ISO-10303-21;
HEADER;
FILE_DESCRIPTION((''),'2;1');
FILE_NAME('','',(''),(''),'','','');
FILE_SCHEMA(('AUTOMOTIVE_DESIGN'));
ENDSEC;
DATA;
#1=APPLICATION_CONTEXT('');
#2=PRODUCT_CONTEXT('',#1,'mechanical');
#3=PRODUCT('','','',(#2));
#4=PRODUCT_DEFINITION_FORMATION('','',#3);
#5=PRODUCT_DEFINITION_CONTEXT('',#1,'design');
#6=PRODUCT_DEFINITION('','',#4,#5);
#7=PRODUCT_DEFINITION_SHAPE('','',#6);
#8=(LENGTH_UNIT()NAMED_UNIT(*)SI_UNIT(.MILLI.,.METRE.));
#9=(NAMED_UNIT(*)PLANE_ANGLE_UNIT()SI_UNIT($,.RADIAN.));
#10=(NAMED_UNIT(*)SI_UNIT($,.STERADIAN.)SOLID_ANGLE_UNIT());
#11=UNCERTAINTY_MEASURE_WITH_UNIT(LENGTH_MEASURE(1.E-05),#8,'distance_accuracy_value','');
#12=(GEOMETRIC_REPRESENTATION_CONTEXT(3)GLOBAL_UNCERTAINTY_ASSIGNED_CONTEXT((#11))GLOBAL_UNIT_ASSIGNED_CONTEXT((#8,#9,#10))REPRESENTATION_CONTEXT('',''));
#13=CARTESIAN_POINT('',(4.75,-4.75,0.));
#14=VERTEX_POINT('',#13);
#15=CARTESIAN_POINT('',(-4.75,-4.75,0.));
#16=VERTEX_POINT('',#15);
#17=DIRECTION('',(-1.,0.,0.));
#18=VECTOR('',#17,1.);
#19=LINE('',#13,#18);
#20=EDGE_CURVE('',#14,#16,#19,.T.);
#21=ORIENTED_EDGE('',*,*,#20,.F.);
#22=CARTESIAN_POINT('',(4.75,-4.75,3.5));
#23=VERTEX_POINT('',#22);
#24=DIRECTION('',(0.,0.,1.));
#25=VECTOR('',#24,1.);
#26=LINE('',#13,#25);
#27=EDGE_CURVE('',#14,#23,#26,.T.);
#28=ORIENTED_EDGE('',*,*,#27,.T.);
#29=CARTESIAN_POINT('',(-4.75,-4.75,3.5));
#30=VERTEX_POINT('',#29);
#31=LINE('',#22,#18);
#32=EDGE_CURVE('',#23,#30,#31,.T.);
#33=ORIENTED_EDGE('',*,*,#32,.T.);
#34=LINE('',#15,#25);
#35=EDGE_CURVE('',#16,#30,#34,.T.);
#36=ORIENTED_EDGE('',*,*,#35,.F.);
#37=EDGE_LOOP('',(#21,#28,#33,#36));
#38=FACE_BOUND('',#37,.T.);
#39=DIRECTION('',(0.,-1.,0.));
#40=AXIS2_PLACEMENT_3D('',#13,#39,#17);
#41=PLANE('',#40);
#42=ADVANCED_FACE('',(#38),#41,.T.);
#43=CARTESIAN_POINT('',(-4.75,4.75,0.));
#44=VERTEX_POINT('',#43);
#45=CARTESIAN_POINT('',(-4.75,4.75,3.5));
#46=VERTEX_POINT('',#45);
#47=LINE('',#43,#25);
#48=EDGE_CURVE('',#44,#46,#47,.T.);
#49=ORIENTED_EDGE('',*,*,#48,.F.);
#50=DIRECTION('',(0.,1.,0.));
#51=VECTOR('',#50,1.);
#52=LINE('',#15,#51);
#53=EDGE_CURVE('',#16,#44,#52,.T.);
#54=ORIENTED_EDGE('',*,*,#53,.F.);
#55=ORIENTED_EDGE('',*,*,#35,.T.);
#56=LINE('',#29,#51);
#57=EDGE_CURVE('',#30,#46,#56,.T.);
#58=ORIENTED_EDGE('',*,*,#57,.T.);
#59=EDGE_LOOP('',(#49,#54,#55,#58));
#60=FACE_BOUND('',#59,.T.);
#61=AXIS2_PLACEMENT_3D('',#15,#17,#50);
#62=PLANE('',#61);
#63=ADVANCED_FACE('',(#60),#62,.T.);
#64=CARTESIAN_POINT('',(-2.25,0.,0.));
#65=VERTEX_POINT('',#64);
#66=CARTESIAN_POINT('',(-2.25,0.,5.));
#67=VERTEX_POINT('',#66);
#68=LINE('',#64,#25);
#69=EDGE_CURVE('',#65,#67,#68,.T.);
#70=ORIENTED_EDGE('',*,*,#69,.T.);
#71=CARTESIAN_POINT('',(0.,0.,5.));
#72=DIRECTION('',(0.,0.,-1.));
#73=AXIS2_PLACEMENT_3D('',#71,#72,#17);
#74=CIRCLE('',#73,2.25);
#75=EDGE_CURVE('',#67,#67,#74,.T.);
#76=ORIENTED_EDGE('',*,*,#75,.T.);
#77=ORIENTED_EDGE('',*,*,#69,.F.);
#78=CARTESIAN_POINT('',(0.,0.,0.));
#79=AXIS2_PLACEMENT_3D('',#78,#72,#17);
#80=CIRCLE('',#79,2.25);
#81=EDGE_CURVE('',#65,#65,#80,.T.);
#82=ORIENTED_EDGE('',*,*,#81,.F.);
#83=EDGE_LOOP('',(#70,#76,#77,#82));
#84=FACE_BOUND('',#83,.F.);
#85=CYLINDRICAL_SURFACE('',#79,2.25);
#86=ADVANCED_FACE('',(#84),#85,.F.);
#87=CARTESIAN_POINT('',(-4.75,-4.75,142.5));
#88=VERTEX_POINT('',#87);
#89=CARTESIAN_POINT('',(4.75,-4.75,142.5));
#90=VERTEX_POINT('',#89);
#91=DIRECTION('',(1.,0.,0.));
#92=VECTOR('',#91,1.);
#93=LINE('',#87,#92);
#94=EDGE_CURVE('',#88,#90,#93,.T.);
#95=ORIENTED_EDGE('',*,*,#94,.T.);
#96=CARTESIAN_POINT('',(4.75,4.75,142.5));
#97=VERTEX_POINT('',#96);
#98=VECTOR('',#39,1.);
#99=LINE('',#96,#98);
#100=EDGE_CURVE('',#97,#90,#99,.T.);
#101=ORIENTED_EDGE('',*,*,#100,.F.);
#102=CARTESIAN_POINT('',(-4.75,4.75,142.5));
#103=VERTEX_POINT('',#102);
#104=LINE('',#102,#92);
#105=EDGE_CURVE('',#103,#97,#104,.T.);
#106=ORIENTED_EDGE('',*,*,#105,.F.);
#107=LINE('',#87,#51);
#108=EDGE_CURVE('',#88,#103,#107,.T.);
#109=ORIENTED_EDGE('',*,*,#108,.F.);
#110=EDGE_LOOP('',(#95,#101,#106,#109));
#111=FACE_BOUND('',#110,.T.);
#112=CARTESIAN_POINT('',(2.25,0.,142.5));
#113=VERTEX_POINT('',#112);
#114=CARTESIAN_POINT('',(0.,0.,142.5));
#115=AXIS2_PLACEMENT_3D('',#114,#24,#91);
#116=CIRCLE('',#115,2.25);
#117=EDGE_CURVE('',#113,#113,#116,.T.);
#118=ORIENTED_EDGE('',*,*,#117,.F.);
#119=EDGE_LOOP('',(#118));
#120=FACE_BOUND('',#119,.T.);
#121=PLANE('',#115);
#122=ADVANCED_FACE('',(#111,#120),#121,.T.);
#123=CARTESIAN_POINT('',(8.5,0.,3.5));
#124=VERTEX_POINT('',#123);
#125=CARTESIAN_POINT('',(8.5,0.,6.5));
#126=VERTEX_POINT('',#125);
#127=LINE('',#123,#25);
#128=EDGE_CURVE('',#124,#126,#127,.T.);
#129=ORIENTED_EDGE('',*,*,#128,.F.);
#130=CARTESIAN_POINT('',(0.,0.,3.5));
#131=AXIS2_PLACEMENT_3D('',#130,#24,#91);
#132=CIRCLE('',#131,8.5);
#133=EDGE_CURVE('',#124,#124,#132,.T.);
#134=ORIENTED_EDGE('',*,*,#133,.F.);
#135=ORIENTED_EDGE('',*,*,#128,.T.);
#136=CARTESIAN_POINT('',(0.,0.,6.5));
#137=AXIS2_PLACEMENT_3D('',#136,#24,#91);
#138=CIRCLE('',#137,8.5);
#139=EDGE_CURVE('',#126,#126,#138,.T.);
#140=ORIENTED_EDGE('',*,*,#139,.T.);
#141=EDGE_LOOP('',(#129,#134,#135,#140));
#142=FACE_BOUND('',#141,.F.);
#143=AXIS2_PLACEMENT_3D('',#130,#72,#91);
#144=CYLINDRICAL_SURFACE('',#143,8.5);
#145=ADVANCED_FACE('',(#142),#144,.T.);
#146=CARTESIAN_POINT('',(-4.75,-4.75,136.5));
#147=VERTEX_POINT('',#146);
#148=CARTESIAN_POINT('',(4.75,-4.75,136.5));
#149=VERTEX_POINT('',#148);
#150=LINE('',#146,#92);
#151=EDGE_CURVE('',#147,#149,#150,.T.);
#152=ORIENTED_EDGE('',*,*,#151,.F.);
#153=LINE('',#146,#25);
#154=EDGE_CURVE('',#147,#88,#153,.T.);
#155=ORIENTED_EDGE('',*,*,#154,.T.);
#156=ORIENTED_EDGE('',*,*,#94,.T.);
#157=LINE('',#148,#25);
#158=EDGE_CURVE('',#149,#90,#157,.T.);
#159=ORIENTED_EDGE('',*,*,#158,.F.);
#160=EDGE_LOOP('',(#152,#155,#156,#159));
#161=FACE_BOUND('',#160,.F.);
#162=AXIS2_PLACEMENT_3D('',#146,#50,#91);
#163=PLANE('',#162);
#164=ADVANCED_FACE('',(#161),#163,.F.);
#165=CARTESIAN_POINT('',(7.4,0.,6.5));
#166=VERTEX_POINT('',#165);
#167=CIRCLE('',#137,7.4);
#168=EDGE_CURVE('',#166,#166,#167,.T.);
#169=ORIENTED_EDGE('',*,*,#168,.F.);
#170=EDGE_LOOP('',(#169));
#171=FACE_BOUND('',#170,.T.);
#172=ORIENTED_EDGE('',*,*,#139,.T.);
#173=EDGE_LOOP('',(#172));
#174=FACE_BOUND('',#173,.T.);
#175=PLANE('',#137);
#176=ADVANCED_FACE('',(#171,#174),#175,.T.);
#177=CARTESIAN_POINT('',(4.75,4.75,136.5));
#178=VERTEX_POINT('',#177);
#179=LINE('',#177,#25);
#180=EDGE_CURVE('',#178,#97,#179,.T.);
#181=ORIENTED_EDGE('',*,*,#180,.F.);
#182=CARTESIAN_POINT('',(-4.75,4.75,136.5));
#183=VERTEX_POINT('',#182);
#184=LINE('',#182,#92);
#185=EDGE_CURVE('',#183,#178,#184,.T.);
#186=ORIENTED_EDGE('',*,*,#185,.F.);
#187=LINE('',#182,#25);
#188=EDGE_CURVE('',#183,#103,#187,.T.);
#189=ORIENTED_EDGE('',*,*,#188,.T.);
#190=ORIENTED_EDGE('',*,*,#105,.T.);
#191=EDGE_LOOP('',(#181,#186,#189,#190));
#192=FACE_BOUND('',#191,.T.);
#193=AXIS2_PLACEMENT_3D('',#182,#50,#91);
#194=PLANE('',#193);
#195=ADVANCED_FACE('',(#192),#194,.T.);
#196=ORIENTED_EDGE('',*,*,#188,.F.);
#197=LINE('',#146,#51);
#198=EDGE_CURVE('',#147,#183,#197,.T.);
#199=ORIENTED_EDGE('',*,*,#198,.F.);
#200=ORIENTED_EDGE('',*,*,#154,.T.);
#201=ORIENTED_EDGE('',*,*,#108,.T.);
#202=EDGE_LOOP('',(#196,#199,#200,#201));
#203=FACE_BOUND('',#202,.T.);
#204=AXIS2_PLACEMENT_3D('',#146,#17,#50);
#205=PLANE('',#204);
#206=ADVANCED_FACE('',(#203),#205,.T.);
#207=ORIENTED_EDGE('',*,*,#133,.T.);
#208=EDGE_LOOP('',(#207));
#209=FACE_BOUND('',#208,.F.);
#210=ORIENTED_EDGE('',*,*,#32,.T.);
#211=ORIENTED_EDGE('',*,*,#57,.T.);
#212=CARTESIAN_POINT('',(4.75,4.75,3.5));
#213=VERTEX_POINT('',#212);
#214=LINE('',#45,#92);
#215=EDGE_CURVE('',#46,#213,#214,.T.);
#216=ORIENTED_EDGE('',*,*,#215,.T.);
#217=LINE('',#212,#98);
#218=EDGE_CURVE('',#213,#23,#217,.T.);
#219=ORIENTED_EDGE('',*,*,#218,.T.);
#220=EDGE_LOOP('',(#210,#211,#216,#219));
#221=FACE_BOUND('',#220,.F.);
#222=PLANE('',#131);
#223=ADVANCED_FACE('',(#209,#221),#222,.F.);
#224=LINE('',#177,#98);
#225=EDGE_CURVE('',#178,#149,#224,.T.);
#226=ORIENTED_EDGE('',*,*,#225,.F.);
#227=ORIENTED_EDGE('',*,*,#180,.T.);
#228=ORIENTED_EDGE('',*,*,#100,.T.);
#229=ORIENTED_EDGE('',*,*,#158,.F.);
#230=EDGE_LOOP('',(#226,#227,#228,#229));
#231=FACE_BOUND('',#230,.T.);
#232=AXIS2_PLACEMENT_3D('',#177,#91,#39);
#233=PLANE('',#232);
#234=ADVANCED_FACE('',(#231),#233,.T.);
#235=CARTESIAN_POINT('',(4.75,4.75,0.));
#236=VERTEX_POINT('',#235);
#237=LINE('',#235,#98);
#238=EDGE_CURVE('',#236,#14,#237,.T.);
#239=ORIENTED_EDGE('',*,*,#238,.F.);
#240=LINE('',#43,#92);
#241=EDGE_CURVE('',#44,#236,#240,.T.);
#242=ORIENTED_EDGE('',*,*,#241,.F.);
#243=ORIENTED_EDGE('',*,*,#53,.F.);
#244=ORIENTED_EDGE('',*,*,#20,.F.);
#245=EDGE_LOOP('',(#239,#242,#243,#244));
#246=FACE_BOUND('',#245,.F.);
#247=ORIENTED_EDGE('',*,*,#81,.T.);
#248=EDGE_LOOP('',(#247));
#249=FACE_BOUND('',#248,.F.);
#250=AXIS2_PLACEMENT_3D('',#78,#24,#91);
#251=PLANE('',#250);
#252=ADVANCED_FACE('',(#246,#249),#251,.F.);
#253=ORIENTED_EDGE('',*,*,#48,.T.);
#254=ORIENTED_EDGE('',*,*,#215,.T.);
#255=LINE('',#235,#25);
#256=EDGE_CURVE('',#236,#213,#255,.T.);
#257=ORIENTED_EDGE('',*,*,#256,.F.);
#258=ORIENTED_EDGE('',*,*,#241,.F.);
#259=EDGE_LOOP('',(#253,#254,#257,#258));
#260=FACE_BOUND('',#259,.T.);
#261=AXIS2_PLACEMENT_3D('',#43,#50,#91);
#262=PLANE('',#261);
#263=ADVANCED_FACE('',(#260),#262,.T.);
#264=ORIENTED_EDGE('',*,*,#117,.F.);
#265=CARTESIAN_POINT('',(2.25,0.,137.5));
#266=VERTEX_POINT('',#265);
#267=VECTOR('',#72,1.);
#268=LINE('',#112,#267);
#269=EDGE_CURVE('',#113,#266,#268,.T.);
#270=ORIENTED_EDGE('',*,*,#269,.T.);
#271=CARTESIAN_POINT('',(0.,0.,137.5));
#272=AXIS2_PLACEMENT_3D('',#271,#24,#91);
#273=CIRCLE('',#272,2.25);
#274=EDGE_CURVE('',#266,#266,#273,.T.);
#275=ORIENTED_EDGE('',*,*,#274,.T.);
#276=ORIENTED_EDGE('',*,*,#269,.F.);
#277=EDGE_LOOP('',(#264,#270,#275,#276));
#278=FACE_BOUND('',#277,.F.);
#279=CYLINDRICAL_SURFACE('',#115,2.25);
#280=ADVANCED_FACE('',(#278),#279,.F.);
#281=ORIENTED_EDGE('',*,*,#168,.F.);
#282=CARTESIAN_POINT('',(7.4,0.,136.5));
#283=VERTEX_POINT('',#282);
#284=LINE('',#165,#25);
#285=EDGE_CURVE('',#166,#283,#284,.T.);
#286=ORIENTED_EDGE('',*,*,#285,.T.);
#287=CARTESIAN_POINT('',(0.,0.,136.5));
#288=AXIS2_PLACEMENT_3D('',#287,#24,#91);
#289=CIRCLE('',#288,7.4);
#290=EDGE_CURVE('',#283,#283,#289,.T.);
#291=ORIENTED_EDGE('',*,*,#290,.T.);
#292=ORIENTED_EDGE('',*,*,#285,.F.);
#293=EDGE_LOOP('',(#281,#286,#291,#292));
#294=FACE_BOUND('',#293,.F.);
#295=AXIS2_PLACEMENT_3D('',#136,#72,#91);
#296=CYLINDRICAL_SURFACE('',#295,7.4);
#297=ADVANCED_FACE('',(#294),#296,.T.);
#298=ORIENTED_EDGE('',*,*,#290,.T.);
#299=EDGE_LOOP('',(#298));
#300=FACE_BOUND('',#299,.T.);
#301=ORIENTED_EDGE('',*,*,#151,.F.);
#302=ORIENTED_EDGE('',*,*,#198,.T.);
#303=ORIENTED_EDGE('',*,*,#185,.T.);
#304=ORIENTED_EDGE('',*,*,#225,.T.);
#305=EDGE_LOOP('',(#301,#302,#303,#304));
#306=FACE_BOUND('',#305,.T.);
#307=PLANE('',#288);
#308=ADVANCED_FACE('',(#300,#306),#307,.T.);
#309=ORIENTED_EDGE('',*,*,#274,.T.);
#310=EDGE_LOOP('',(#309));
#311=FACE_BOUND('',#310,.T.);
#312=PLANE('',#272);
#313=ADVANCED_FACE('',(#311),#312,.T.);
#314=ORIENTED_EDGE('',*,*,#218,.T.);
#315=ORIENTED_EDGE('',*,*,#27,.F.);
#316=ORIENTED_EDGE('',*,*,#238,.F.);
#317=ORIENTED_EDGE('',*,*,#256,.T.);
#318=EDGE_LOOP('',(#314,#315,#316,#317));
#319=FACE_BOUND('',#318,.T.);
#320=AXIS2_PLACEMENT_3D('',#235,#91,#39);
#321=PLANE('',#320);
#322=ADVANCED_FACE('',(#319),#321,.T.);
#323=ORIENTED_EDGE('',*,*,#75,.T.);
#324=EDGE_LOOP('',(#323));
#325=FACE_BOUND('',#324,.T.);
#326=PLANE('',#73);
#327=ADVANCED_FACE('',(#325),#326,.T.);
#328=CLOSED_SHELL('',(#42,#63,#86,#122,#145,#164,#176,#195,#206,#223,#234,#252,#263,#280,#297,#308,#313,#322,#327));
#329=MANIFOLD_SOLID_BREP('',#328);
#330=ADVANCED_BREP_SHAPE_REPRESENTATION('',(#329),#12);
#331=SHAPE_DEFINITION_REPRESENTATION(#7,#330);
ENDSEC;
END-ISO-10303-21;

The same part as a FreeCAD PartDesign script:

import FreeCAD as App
import Part
import Sketcher
from FreeCAD import Vector


def add_polygon(sketch, points):
    """Adds a closed chain of lines whose ends are joined by coincident constraints."""
    first, n = sketch.GeometryCount, len(points)
    for a, b in zip(points, points[1:] + points[:1]):
        sketch.addGeometry(Part.LineSegment(App.Vector(*a, 0), App.Vector(*b, 0)), False)
    for i in range(n):
        sketch.addConstraint(Sketcher.Constraint("Coincident", first + i, 2, first + (i + 1) % n, 1))

doc = App.newDocument("Part")
params = doc.addObject("Spreadsheet::Sheet", "Params")
for row, (alias, value) in enumerate([
    ("sketch1_width", "9.5 mm"),
    ("pad1_length", "3.5 mm"),
    ("sketch2_diameter", "17 mm"),
    ("pad2_length", "3 mm"),
    ("sketch3_diameter", "14.8 mm"),
    ("pad3_length", "130 mm"),
    ("sketch4_width", "9.5 mm"),
    ("pad4_length", "6 mm"),
    ("sketch5_diameter", "4.5 mm"),
    ("pocket1_length", "5 mm"),
    ("sketch6_diameter", "4.5 mm"),
    ("pocket2_length", "5 mm"),
], start=1):
    params.set(f"A{row}", alias)
    params.set(f"B{row}", "=" + value)
    params.setAlias(f"B{row}", alias)

body = doc.addObject("PartDesign::Body", "Body")

sketch1 = body.newObject("Sketcher::SketchObject", "Sketch")
sketch1.AttachmentSupport = (doc.getObject("XY_Plane"), [""])
sketch1.MapMode = "FlatFace"
add_polygon(sketch1, [(5, 5), (-5, 5), (-5, -5), (5, -5)])
sketch1.addConstraint([
    Sketcher.Constraint("Horizontal", 0),
    Sketcher.Constraint("Vertical", 1),
    Sketcher.Constraint("Horizontal", 2),
    Sketcher.Constraint("Vertical", 3),
    Sketcher.Constraint("Symmetric", 0, 2, 2, 2, -1, 1),
    Sketcher.Constraint("Equal", 2, 1),
    Sketcher.Constraint("DistanceX", 0, 2, 0, 1, 9.5),
])
sketch1.setExpression("Constraints[10]", "Params.sketch1_width")
pad1 = body.newObject("PartDesign::Pad", "Pad")
pad1.Profile = sketch1
pad1.setExpression("Length", "Params.pad1_length")

sketch2 = body.newObject("Sketcher::SketchObject", "Sketch001")
sketch2.AttachmentSupport = (doc.getObject("XY_Plane"), [""])
sketch2.MapMode = "FlatFace"
sketch2.AttachmentOffset = App.Placement(Vector(0, 0, 3.5), App.Rotation())
sketch2.addGeometry(Part.Circle(Vector(0, 0, 0), Vector(0, 0, 1), 8), False)
sketch2.addConstraint([
    Sketcher.Constraint("Coincident", 0, 3, -1, 1),
    Sketcher.Constraint("Diameter", 0, 17.0),
])
sketch2.setExpression("Constraints[1]", "Params.sketch2_diameter")
pad2 = body.newObject("PartDesign::Pad", "Pad001")
pad2.Profile = sketch2
pad2.setExpression("Length", "Params.pad2_length")

sketch3 = body.newObject("Sketcher::SketchObject", "Sketch002")
sketch3.AttachmentSupport = (doc.getObject("XY_Plane"), [""])
sketch3.MapMode = "FlatFace"
sketch3.AttachmentOffset = App.Placement(Vector(0, 0, 6.5), App.Rotation())
sketch3.addGeometry(Part.Circle(Vector(0, 0, 0), Vector(0, 0, 1), 7), False)
sketch3.addConstraint([
    Sketcher.Constraint("Coincident", 0, 3, -1, 1),
    Sketcher.Constraint("Diameter", 0, 14.8),
])
sketch3.setExpression("Constraints[1]", "Params.sketch3_diameter")
pad3 = body.newObject("PartDesign::Pad", "Pad002")
pad3.Profile = sketch3
pad3.setExpression("Length", "Params.pad3_length")

sketch4 = body.newObject("Sketcher::SketchObject", "Sketch003")
sketch4.AttachmentSupport = (doc.getObject("XY_Plane"), [""])
sketch4.MapMode = "FlatFace"
sketch4.AttachmentOffset = App.Placement(Vector(0, 0, 136.5), App.Rotation())
add_polygon(sketch4, [(-5, 5), (-5, -5), (5, -5), (5, 5)])
sketch4.addConstraint([
    Sketcher.Constraint("Vertical", 0),
    Sketcher.Constraint("Horizontal", 1),
    Sketcher.Constraint("Vertical", 2),
    Sketcher.Constraint("Horizontal", 3),
    Sketcher.Constraint("Symmetric", 0, 2, 2, 2, -1, 1),
    Sketcher.Constraint("Equal", 3, 0),
    Sketcher.Constraint("DistanceX", 1, 1, 1, 2, 9.5),
])
sketch4.setExpression("Constraints[10]", "Params.sketch4_width")
pad4 = body.newObject("PartDesign::Pad", "Pad003")
pad4.Profile = sketch4
pad4.setExpression("Length", "Params.pad4_length")

sketch5 = body.newObject("Sketcher::SketchObject", "Sketch004")
sketch5.AttachmentSupport = (doc.getObject("XY_Plane"), [""])
sketch5.MapMode = "FlatFace"
sketch5.AttachmentOffset = App.Placement(Vector(0, 0, 142.5), App.Rotation())
sketch5.addGeometry(Part.Circle(Vector(0, 0, 0), Vector(0, 0, 1), 2.2), False)
sketch5.addConstraint([
    Sketcher.Constraint("Coincident", 0, 3, -1, 1),
    Sketcher.Constraint("Diameter", 0, 4.5),
])
sketch5.setExpression("Constraints[1]", "Params.sketch5_diameter")
pocket1 = body.newObject("PartDesign::Pocket", "Pocket")
pocket1.Profile = sketch5
pocket1.setExpression("Length", "Params.pocket1_length")

sketch6 = body.newObject("Sketcher::SketchObject", "Sketch005")
sketch6.AttachmentSupport = (doc.getObject("XY_Plane"), [""])
sketch6.MapMode = "FlatFace"
sketch6.addGeometry(Part.Circle(Vector(0, 0, 0), Vector(0, 0, 1), 2.2), False)
sketch6.addConstraint([
    Sketcher.Constraint("Coincident", 0, 3, -1, 1),
    Sketcher.Constraint("Diameter", 0, 4.5),
])
sketch6.setExpression("Constraints[1]", "Params.sketch6_diameter")
pocket2 = body.newObject("PartDesign::Pocket", "Pocket001")
pocket2.Profile = sketch6
pocket2.setExpression("Length", "Params.pocket2_length")
pocket2.Reversed = True

doc.recompute()
